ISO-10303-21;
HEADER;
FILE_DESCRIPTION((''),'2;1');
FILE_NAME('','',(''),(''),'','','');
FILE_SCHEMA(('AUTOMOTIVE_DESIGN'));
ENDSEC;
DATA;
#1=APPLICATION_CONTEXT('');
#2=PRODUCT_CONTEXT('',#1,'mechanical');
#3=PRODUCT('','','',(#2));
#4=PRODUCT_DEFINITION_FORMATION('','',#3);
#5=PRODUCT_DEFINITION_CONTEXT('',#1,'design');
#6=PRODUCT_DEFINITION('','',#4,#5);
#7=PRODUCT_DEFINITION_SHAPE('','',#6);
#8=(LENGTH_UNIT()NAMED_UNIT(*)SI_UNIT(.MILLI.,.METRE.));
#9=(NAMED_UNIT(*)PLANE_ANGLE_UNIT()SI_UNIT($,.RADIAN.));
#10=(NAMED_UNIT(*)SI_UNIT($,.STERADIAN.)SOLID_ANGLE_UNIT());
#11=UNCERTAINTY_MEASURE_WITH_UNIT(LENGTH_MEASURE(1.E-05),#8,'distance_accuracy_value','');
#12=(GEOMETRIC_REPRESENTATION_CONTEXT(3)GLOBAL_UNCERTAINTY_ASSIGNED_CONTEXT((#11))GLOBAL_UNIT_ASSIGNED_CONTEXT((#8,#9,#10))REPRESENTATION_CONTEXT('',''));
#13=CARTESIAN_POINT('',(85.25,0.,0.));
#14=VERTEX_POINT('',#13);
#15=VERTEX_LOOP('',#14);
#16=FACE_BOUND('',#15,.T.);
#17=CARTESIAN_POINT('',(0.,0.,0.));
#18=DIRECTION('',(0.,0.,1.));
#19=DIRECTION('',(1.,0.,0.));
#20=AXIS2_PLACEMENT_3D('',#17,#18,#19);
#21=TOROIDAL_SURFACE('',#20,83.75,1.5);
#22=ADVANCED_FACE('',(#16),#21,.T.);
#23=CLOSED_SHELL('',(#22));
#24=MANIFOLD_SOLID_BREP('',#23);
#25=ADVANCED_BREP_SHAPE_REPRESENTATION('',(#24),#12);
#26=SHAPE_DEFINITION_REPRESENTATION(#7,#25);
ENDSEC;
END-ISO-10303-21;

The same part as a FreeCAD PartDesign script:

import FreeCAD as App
import Part
import Sketcher

V = App.Vector
Q = App.Units.Quantity

doc = App.newDocument("Part")
body = doc.addObject("PartDesign::Body", "Body")

sketch1 = body.newObject("Sketcher::SketchObject", "Sketch")
sketch1.AttachmentSupport = (doc.getObject("YZ_Plane"), [""])
sketch1.MapMode = "FlatFace"
sketch1.addGeometry(Part.Circle(V(83.75, 0, 0), V(0, 0, 1), 1.5), False)
sketch1.addConstraint(Sketcher.Constraint("PointOnObject", 0, 3, -1))
sketch1.addConstraint(Sketcher.Constraint("Diameter", 0, Q("3 mm")))
sketch1.addConstraint(Sketcher.Constraint("DistanceX", -1, 1, 0, 3, Q("83.75 mm")))
revolution = body.newObject("PartDesign::Revolution", "Revolution")
revolution.Profile = sketch1
revolution.ReferenceAxis = (sketch1, ["V_Axis"])
revolution.Angle = 360

doc.recompute()
